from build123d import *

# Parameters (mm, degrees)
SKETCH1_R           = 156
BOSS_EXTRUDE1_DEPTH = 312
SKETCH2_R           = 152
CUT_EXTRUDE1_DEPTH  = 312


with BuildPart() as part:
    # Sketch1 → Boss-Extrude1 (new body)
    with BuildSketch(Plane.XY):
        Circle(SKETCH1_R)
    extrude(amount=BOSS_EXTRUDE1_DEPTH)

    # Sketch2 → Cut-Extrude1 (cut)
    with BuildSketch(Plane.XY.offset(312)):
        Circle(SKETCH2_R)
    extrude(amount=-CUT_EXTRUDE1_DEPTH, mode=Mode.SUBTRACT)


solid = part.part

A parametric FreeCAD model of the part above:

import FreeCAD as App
import Part
import Sketcher

doc = App.newDocument("Part")
body = doc.addObject("PartDesign::Body", "Body")

# Sketch on XY plane
sketch1 = body.newObject("Sketcher::SketchObject", "Sketch")
sketch1.AttachmentSupport = (doc.getObject("XY_Plane"), [""])
sketch1.MapMode = "FlatFace"
sketch1.addGeometry(Part.Circle(App.Vector(0, 0, 0), App.Vector(0, 0, 1), 156), False)
sketch1.addConstraint(Sketcher.Constraint("Coincident", 0, 3, -1, 1))
sketch1.addConstraint(Sketcher.Constraint("Diameter", 0, 312.0))
pad1 = body.newObject("PartDesign::Pad", "Pad")
pad1.Profile = sketch1
pad1.Length = 312

# Sketch on XY plane
sketch2 = body.newObject("Sketcher::SketchObject", "Sketch001")
sketch2.AttachmentSupport = (doc.getObject("XY_Plane"), [""])
sketch2.MapMode = "FlatFace"
sketch2.AttachmentOffset = App.Placement(App.Vector(0, 0, 312), App.Rotation())
sketch2.addGeometry(Part.Circle(App.Vector(0, 0, 0), App.Vector(0, 0, 1), 152), False)
sketch2.addConstraint(Sketcher.Constraint("Coincident", 0, 3, -1, 1))
sketch2.addConstraint(Sketcher.Constraint("Diameter", 0, 304.0))
pocket1 = body.newObject("PartDesign::Pocket", "Pocket")
pocket1.Profile = sketch2
pocket1.Length = 312

doc.recompute()
